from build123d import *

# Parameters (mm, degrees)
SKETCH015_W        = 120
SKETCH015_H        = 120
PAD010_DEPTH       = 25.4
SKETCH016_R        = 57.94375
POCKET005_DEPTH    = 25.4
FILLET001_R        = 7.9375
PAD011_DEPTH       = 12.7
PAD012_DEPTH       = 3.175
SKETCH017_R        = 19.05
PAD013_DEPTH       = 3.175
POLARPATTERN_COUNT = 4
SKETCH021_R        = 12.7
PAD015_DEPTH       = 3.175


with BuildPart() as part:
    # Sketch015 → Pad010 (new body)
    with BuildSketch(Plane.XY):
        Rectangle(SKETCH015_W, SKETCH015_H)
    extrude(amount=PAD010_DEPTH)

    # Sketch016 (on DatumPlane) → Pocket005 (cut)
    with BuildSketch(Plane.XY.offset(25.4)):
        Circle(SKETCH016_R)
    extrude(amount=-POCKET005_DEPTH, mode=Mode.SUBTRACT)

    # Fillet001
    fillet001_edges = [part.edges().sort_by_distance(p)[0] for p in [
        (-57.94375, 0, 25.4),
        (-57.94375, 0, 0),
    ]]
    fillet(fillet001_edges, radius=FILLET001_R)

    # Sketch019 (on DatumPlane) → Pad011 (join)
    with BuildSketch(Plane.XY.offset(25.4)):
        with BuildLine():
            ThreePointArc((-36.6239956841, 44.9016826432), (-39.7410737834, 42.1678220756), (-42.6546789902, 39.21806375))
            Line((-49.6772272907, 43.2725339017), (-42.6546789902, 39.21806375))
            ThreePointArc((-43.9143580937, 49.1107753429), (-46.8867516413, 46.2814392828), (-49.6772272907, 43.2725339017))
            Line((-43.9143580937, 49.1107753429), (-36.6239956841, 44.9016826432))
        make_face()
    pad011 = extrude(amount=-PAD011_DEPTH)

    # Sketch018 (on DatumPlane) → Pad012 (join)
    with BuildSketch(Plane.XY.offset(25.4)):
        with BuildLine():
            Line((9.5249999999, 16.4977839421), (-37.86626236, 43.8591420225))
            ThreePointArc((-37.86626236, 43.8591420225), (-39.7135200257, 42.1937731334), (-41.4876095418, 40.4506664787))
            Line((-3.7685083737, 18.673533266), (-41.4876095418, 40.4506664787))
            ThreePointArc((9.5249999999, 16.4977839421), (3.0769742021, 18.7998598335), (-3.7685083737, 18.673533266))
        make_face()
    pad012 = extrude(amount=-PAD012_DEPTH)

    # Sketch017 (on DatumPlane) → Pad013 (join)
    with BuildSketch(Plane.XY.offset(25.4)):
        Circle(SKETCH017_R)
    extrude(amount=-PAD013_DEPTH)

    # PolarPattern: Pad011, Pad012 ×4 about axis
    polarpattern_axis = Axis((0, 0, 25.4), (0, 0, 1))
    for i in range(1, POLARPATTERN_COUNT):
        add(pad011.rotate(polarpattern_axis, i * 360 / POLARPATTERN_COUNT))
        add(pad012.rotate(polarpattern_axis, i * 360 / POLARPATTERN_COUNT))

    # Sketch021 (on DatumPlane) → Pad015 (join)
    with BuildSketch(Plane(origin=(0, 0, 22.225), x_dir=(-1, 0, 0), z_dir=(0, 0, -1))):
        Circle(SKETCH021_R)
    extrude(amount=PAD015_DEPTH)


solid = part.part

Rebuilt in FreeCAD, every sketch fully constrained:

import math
import FreeCAD as App
import Part
import Sketcher

V = App.Vector
Q = App.Units.Quantity


def edges_at(feature, points):
    """Names of the edges that pass closest to the given points."""
    edges = feature.Shape.Edges
    near = lambda p: min(range(len(edges)), key=lambda i: edges[i].distToShape(Part.Vertex(*p))[0])
    return sorted({f"Edge{near(p) + 1}" for p in points})


def add_polygon(sketch, points):
    """Adds a closed chain of lines whose ends are joined by coincident constraints."""
    first, n = sketch.GeometryCount, len(points)
    for a, b in zip(points, points[1:] + points[:1]):
        sketch.addGeometry(Part.LineSegment(App.Vector(*a, 0), App.Vector(*b, 0)), False)
    for i in range(n):
        sketch.addConstraint(Sketcher.Constraint("Coincident", first + i, 2, first + (i + 1) % n, 1))

doc = App.newDocument("Part")
body = doc.addObject("PartDesign::Body", "Body")

sketch1 = body.newObject("Sketcher::SketchObject", "Sketch")
sketch1.AttachmentSupport = (doc.getObject("XY_Plane"), [""])
sketch1.MapMode = "FlatFace"
add_polygon(sketch1, [(-60, 60), (-60, -60), (60, -60), (60, 60)])
sketch1.addConstraint([
    Sketcher.Constraint("Vertical", 0),
    Sketcher.Constraint("Horizontal", 1),
    Sketcher.Constraint("Vertical", 2),
    Sketcher.Constraint("Horizontal", 3),
    Sketcher.Constraint("Symmetric", 0, 2, 2, 2, -1, 1),
    Sketcher.Constraint("Equal", 3, 0),
    Sketcher.Constraint("DistanceX", 1, 1, 1, 2, 120.0),
])
pad1 = body.newObject("PartDesign::Pad", "Pad")
pad1.Profile = sketch1
pad1.Length = Q("1 in")

sketch2 = body.newObject("Sketcher::SketchObject", "Sketch001")
sketch2.AttachmentSupport = (doc.getObject("XY_Plane"), [""])
sketch2.MapMode = "FlatFace"
sketch2.AttachmentOffset = App.Placement(V(0, 0, 1 * 25.4), App.Rotation())
sketch2.addGeometry(Part.Circle(V(0, 0, 0), V(0, 0, 1), 58), False)
sketch2.addConstraint([
    Sketcher.Constraint("Coincident", 0, 3, -1, 1),
    Sketcher.Constraint("Diameter", 0, Q("4.5625 in")),
])
pocket1 = body.newObject("PartDesign::Pocket", "Pocket")
pocket1.Profile = sketch2
pocket1.Length = Q("1 in")
doc.recompute()

fillet = body.newObject("PartDesign::Fillet", "Fillet")
fillet.Base = (pocket1, edges_at(pocket1, [(-57.944, 0, 25.4), (-57.944, 0, 0)]))
fillet.Radius = Q("0.3125 in")

sketch3 = body.newObject("Sketcher::SketchObject", "Sketch002")
sketch3.AttachmentSupport = (doc.getObject("XY_Plane"), [""])
sketch3.MapMode = "FlatFace"
sketch3.AttachmentOffset = App.Placement(V(0, 0, 1 * 25.4), App.Rotation())
sketch3.addGeometry([
    Part.ArcOfCircle(Part.Circle(V(0, 0, 0), V(0, 0, 1), 58), math.radians(129.2), math.radians(137.4)),
    Part.LineSegment(V(-37, 45, 0), V(-44, 49, 0)),
    Part.ArcOfCircle(Part.Circle(V(0, 0, 0), V(0, 0, 1), 66), math.radians(131.8), math.radians(138.94)),
    Part.LineSegment(V(-50, 43, 0), V(-43, 39, 0)),
], False)
sketch3.addConstraint([
    Sketcher.Constraint("Coincident", 0, 1, 1, 1),
    Sketcher.Constraint("Coincident", 1, 2, 2, 1),
    Sketcher.Constraint("Coincident", 2, 2, 3, 1),
    Sketcher.Constraint("Coincident", 3, 2, 0, 2),
    Sketcher.Constraint("Coincident", 0, 3, -1, 1),
    Sketcher.Constraint("Coincident", 2, 3, -1, 1),
    Sketcher.Constraint("Parallel", 1, 3),
    Sketcher.Constraint("Angle", 1, Q("150 deg")),
    Sketcher.Constraint("Radius", 0, Q("2.28125 in")),
    Sketcher.Constraint("Radius", 2, Q("2.59375 in")),
    Sketcher.Constraint("Distance", 3, 8.10894),
    Sketcher.Constraint("DistanceX", 1, 2, -1, 1, 43.914358),
])
pad2 = body.newObject("PartDesign::Pad", "Pad001")
pad2.Profile = sketch3
pad2.Length = Q("0.5 in")
pad2.Reversed = True

sketch4 = body.newObject("Sketcher::SketchObject", "Sketch003")
sketch4.AttachmentSupport = (doc.getObject("XY_Plane"), [""])
sketch4.MapMode = "FlatFace"
sketch4.AttachmentOffset = App.Placement(V(0, 0, 1 * 25.4), App.Rotation())
sketch4.addGeometry([
    Part.LineSegment(V(9.5, 16.5, 0), V(-37.9, 43.9, 0)),
    Part.ArcOfCircle(Part.Circle(V(0, 0, 0), V(0, 0, 1), 57.9), math.radians(130.81), math.radians(135.73)),
    Part.LineSegment(V(-41.5, 40.5, 0), V(-3.8, 18.7, 0)),
    Part.ArcOfCircle(Part.Circle(V(0, 0, 0), V(0, 0, 1), 19.1), math.radians(60), math.radians(101)),
], False)
sketch4.addConstraint([
    Sketcher.Constraint("Coincident", 0, 2, 1, 1),
    Sketcher.Constraint("Coincident", 1, 2, 2, 1),
    Sketcher.Constraint("Coincident", 2, 2, 3, 2),
    Sketcher.Constraint("Tangent", 3, 1, 0, 1),
    Sketcher.Constraint("Coincident", 1, 3, -1, 1),
    Sketcher.Constraint("Coincident", 3, 3, -1, 1),
    Sketcher.Constraint("Parallel", 0, 2),
    Sketcher.Constraint("Radius", 3, Q("0.75 in")),
    Sketcher.Constraint("Angle", 0, Q("150 deg")),
    Sketcher.Constraint("Radius", 1, Q("2.28125 in")),
    Sketcher.Constraint("DistanceX", 1, 2, 2, 2, 37.719101),
])
pad3 = body.newObject("PartDesign::Pad", "Pad002")
pad3.Profile = sketch4
pad3.Length = Q("0.125 in")
pad3.Reversed = True

sketch5 = body.newObject("Sketcher::SketchObject", "Sketch004")
sketch5.AttachmentSupport = (doc.getObject("XY_Plane"), [""])
sketch5.MapMode = "FlatFace"
sketch5.AttachmentOffset = App.Placement(V(0, 0, 1 * 25.4), App.Rotation())
sketch5.addGeometry(Part.Circle(V(0, 0, 0), V(0, 0, 1), 19), False)
sketch5.addConstraint([
    Sketcher.Constraint("Coincident", 0, 3, -1, 1),
    Sketcher.Constraint("Diameter", 0, Q("1.5 in")),
])
pad4 = body.newObject("PartDesign::Pad", "Pad003")
pad4.Profile = sketch5
pad4.Length = Q("0.125 in")
pad4.Reversed = True
doc.recompute()

polarpattern = body.newObject("PartDesign::PolarPattern", "PolarPattern")
polarpattern.Originals = [pad2, pad3]
polarpattern.Axis = (doc.getObject("Z_Axis"), [""])
polarpattern.Angle = 360
polarpattern.Occurrences = 4
body.Tip = polarpattern

sketch6 = body.newObject("Sketcher::SketchObject", "Sketch005")
sketch6.AttachmentSupport = (doc.getObject("XY_Plane"), [""])
sketch6.MapMode = "FlatFace"
sketch6.AttachmentOffset = App.Placement(V(0, 0, 0.875 * 25.4), App.Rotation())
sketch6.addGeometry(Part.Circle(V(0, 0, 0), V(0, 0, 1), 13), False)
sketch6.addConstraint([
    Sketcher.Constraint("Coincident", 0, 3, -1, 1),
    Sketcher.Constraint("Diameter", 0, Q("1 in")),
])
pad5 = body.newObject("PartDesign::Pad", "Pad004")
pad5.Profile = sketch6
pad5.Length = Q("0.125 in")
pad5.Reversed = True

doc.recompute()
